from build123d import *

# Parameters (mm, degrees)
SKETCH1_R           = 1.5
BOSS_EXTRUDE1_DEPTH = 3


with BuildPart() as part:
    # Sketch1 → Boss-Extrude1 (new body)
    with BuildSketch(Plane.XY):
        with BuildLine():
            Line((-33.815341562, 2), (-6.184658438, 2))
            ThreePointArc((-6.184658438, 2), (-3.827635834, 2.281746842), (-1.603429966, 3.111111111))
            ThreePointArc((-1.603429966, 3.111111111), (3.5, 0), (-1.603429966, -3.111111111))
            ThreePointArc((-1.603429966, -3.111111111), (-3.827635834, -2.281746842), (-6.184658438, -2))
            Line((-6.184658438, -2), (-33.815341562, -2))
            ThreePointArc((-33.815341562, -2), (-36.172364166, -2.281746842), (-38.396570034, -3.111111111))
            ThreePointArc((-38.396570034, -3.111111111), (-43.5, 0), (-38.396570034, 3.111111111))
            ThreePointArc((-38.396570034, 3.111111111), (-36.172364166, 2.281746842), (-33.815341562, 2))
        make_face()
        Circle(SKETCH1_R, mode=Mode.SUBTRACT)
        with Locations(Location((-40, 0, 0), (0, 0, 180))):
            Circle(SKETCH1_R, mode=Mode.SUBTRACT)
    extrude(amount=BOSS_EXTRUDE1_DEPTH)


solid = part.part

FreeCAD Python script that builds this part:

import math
import FreeCAD as App
import Part
import Sketcher
from FreeCAD import Vector
Q = App.Units.Quantity

doc = App.newDocument("Part")
params = doc.addObject("Spreadsheet::Sheet", "Params")
for row, (alias, value) in enumerate([
    ("sketch1_diameter", "3 mm"),
    ("sketch1_radius", "10 mm"),
    ("sketch1_radius2", "3.5 mm"),
    ("pad1_length", "3 mm"),
], start=1):
    params.set(f"A{row}", alias)
    params.set(f"B{row}", "=" + value)
    params.setAlias(f"B{row}", alias)

body = doc.addObject("PartDesign::Body", "Body")

sketch1 = body.newObject("Sketcher::SketchObject", "Sketch")
sketch1.AttachmentSupport = (doc.getObject("XY_Plane"), [""])
sketch1.MapMode = "FlatFace"
sketch1.addGeometry(Part.LineSegment(Vector(-6.2, 2, 0), Vector(-33.8, 2, 0)), False)
sketch1.addGeometry(Part.ArcOfCircle(Part.Circle(Vector(-33.8, 12, 0), Vector(0, 0, 1), 10), math.radians(-117), math.radians(-90)), False)
sketch1.addGeometry(Part.ArcOfCircle(Part.Circle(Vector(-40, 0, 0), Vector(0, 0, 1), 3.5), math.radians(63), math.radians(297)), False)
sketch1.addGeometry(Part.ArcOfCircle(Part.Circle(Vector(-33.8, -12, 0), Vector(0, 0, 1), 10), math.radians(90), math.radians(117)), False)
sketch1.addGeometry(Part.LineSegment(Vector(-33.8, -2, 0), Vector(-6.2, -2, 0)), False)
sketch1.addGeometry(Part.ArcOfCircle(Part.Circle(Vector(-6.2, -12, 0), Vector(0, 0, 1), 10), math.radians(63), math.radians(90)), False)
sketch1.addGeometry(Part.ArcOfCircle(Part.Circle(Vector(0, 0, 0), Vector(0, 0, 1), 3.5), math.radians(-117), math.radians(117)), False)
sketch1.addGeometry(Part.ArcOfCircle(Part.Circle(Vector(-6.2, 12, 0), Vector(0, 0, 1), 10), math.radians(-90), math.radians(-63)), False)
sketch1.addGeometry(Part.Circle(Vector(0, 0, 0), Vector(0, 0, 1), 1.5), False)
sketch1.addGeometry(Part.Circle(Vector(-40, 0, 0), Vector(0, 0, 1), 1.5), False)
sketch1.addConstraint(Sketcher.Constraint("Tangent", 0, 2, 1, 2))
sketch1.addConstraint(Sketcher.Constraint("Tangent", 1, 1, 2, 1))
sketch1.addConstraint(Sketcher.Constraint("Tangent", 2, 2, 3, 2))
sketch1.addConstraint(Sketcher.Constraint("Tangent", 3, 1, 4, 1))
sketch1.addConstraint(Sketcher.Constraint("Tangent", 4, 2, 5, 2))
sketch1.addConstraint(Sketcher.Constraint("Tangent", 5, 1, 6, 1))
sketch1.addConstraint(Sketcher.Constraint("Tangent", 6, 2, 7, 2))
sketch1.addConstraint(Sketcher.Constraint("Tangent", 7, 1, 0, 1))
sketch1.addConstraint(Sketcher.Constraint("Horizontal", 0))
sketch1.addConstraint(Sketcher.Constraint("Horizontal", 4))
sketch1.addConstraint(Sketcher.Constraint("Coincident", 6, 3, -1, 1))
sketch1.addConstraint(Sketcher.Constraint("Coincident", 8, 3, -1, 1))
sketch1.addConstraint(Sketcher.Constraint("Coincident", 9, 3, 2, 3))
sketch1.addConstraint(Sketcher.Constraint("Equal", 1, 3))
sketch1.addConstraint(Sketcher.Constraint("Equal", 3, 5))
sketch1.addConstraint(Sketcher.Constraint("Equal", 2, 6))
sketch1.addConstraint(Sketcher.Constraint("Equal", 5, 7))
sketch1.addConstraint(Sketcher.Constraint("Equal", 8, 9))
sketch1.addConstraint(Sketcher.Constraint("Symmetric", 1, 3, 3, 3, -1))
sketch1.addConstraint(Sketcher.Constraint("Diameter", 8, Q("3 mm")))
sketch1.addConstraint(Sketcher.Constraint("Radius", 1, Q("10 mm")))
sketch1.addConstraint(Sketcher.Constraint("Radius", 2, Q("3.5 mm")))
sketch1.addConstraint(Sketcher.Constraint("DistanceY", -1, 1, 1, 3, Q("12 mm")))
sketch1.addConstraint(Sketcher.Constraint("DistanceX", 2, 3, -1, 1, Q("40 mm")))
sketch1.setExpression("Constraints[19]", "Params.sketch1_diameter")
sketch1.setExpression("Constraints[20]", "Params.sketch1_radius")
sketch1.setExpression("Constraints[21]", "Params.sketch1_radius2")
pad1 = body.newObject("PartDesign::Pad", "Pad")
pad1.Profile = sketch1
pad1.setExpression("Length", "Params.pad1_length")

doc.recompute()
